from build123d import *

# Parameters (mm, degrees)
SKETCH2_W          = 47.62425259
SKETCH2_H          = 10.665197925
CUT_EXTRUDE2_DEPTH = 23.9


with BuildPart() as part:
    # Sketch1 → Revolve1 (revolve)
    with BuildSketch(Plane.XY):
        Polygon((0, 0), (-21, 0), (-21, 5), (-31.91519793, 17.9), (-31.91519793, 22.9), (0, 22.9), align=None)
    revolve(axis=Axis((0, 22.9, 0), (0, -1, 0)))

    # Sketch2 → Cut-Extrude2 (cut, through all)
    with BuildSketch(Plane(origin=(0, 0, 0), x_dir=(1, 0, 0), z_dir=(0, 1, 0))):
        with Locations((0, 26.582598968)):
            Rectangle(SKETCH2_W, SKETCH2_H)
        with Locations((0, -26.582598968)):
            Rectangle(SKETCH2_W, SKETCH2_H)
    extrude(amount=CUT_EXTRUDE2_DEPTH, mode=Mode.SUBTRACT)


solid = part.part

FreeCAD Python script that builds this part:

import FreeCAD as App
import Part
import Sketcher


def add_polygon(sketch, points):
    """Adds a closed chain of lines whose ends are joined by coincident constraints."""
    first, n = sketch.GeometryCount, len(points)
    for a, b in zip(points, points[1:] + points[:1]):
        sketch.addGeometry(Part.LineSegment(App.Vector(*a, 0), App.Vector(*b, 0)), False)
    for i in range(n):
        sketch.addConstraint(Sketcher.Constraint("Coincident", first + i, 2, first + (i + 1) % n, 1))

doc = App.newDocument("Part")
body = doc.addObject("PartDesign::Body", "Body")

sketch1 = body.newObject("Sketcher::SketchObject", "Sketch")
sketch1.AttachmentSupport = (doc.getObject("XY_Plane"), [""])
sketch1.MapMode = "FlatFace"
add_polygon(sketch1, [(-21, 0), (0, 0), (0, 23), (-32, 23), (-32, 18), (-21, 5)])
sketch1.addConstraint([
    Sketcher.Constraint("Horizontal", 0),
    Sketcher.Constraint("Vertical", 1),
    Sketcher.Constraint("Horizontal", 2),
    Sketcher.Constraint("Vertical", 3),
    Sketcher.Constraint("Vertical", 5),
    Sketcher.Constraint("Coincident", 0, 2, -1, 1),
    Sketcher.Constraint("Equal", 3, 5),
    Sketcher.Constraint("DistanceX", 0, 1, 0, 2, 21.0),
    Sketcher.Constraint("DistanceY", 3, 2, 3, 1, 5.0),
    Sketcher.Constraint("DistanceY", 1, 1, 1, 2, 22.9),
    Sketcher.Constraint("Distance", 4, 16.89827),
])
revolution = body.newObject("PartDesign::Revolution", "Revolution")
revolution.Profile = sketch1
revolution.ReferenceAxis = (sketch1, ["V_Axis"])
revolution.Angle = 360

sketch2 = body.newObject("Sketcher::SketchObject", "Sketch001")
sketch2.AttachmentSupport = (doc.getObject("XZ_Plane"), [""])
sketch2.MapMode = "FlatFace"
add_polygon(sketch2, [(-24, -32), (-24, -21), (24, -21), (24, -32)])
add_polygon(sketch2, [(-24, 21), (-24, 32), (24, 32), (24, 21)])
sketch2.addConstraint([
    Sketcher.Constraint("Vertical", 0),
    Sketcher.Constraint("Horizontal", 1),
    Sketcher.Constraint("Vertical", 2),
    Sketcher.Constraint("Horizontal", 3),
    Sketcher.Constraint("Vertical", 4),
    Sketcher.Constraint("Horizontal", 5),
    Sketcher.Constraint("Vertical", 6),
    Sketcher.Constraint("Horizontal", 7),
    Sketcher.Constraint("Symmetric", 2, 2, 4, 2, -1, 1),
    Sketcher.Constraint("Symmetric", 0, 2, 6, 2, -1, 1),
    Sketcher.Constraint("Vertical", 3, 2, 4, 2),
    Sketcher.Constraint("DistanceY", 1, 2, 6, 2, 42.5),
    Sketcher.Constraint("DistanceX", 1, 1, 1, 2, 47.624253),
    Sketcher.Constraint("DistanceY", 0, 1, 0, 2, 10.665198),
])
pocket1 = body.newObject("PartDesign::Pocket", "Pocket")
pocket1.Profile = sketch2
pocket1.Type = "ThroughAll"

doc.recompute()
